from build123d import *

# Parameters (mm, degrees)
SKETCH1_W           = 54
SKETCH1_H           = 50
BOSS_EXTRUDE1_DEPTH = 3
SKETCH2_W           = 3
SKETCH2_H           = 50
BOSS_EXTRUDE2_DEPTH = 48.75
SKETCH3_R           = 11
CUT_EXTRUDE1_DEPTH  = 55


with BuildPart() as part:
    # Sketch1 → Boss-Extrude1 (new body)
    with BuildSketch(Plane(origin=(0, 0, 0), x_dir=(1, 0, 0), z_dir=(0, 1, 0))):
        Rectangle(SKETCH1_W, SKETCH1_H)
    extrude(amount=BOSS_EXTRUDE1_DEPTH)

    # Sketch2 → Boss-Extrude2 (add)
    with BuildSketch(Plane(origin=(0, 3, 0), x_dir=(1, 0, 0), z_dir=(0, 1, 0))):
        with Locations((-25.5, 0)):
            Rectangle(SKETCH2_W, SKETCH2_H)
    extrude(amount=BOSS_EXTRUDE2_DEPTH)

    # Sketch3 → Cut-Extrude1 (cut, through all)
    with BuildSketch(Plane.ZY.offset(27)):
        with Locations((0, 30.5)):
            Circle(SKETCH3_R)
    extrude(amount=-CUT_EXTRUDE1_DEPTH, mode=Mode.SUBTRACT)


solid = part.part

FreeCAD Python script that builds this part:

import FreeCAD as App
import Part
import Sketcher

V = App.Vector


def add_polygon(sketch, points):
    """Adds a closed chain of lines whose ends are joined by coincident constraints."""
    first, n = sketch.GeometryCount, len(points)
    for a, b in zip(points, points[1:] + points[:1]):
        sketch.addGeometry(Part.LineSegment(App.Vector(*a, 0), App.Vector(*b, 0)), False)
    for i in range(n):
        sketch.addConstraint(Sketcher.Constraint("Coincident", first + i, 2, first + (i + 1) % n, 1))

doc = App.newDocument("Part")
body = doc.addObject("PartDesign::Body", "Body")

sketch1 = doc.addObject("Sketcher::SketchObject", "Sketch")
body.addObject(sketch1)
sketch1.AttachmentSupport = (doc.XZ_Plane, [""])
sketch1.MapMode = "FlatFace"
add_polygon(sketch1, [(-27, -25), (-27, 25), (27, 25), (27, -25)])
sketch1.addConstraint([
    Sketcher.Constraint("Vertical", 0),
    Sketcher.Constraint("Horizontal", 1),
    Sketcher.Constraint("Vertical", 2),
    Sketcher.Constraint("Horizontal", 3),
    Sketcher.Constraint("Symmetric", 0, 2, 2, 2, -1, 1),
    Sketcher.Constraint("DistanceX", 1, 1, 1, 2, 54.0),
    Sketcher.Constraint("DistanceY", 0, 1, 0, 2, 50.0),
])
pad1 = doc.addObject("PartDesign::Pad", "Pad")
body.addObject(pad1)
pad1.Profile = sketch1
pad1.Length = 3
pad1.Reversed = True

sketch2 = doc.addObject("Sketcher::SketchObject", "Sketch001")
body.addObject(sketch2)
sketch2.AttachmentSupport = (doc.XZ_Plane, [""])
sketch2.MapMode = "FlatFace"
sketch2.AttachmentOffset = App.Placement(V(0, 0, -3), App.Rotation())
add_polygon(sketch2, [(-27, -25), (-27, 25), (-24, 25), (-24, -25)])
sketch2.addConstraint([
    Sketcher.Constraint("Vertical", 0),
    Sketcher.Constraint("Horizontal", 1),
    Sketcher.Constraint("Vertical", 2),
    Sketcher.Constraint("Horizontal", 3),
    Sketcher.Constraint("DistanceX", 1, 1, 1, 2, 3.0),
    Sketcher.Constraint("DistanceY", 0, 1, 0, 2, 50.0),
    Sketcher.Constraint("DistanceX", 0, 2, -1, 1, 27.0),
    Sketcher.Constraint("DistanceY", -1, 1, 0, 2, 25.0),
])
pad2 = doc.addObject("PartDesign::Pad", "Pad001")
body.addObject(pad2)
pad2.Profile = sketch2
pad2.Length = 48.75
pad2.Reversed = True

sketch3 = doc.addObject("Sketcher::SketchObject", "Sketch002")
body.addObject(sketch3)
sketch3.AttachmentSupport = (doc.YZ_Plane, [""])
sketch3.MapMode = "FlatFace"
sketch3.AttachmentOffset = App.Placement(V(0, 0, -27), App.Rotation())
sketch3.addGeometry(Part.Circle(V(30, 0, 0), V(0, 0, 1), 11), False)
sketch3.addConstraint([
    Sketcher.Constraint("PointOnObject", 0, 3, -1),
    Sketcher.Constraint("Diameter", 0, 22.0),
    Sketcher.Constraint("DistanceX", -1, 1, 0, 3, 30.5),
])
pocket1 = doc.addObject("PartDesign::Pocket", "Pocket")
body.addObject(pocket1)
pocket1.Profile = sketch3
pocket1.Type = "ThroughAll"
pocket1.Reversed = True

doc.recompute()
